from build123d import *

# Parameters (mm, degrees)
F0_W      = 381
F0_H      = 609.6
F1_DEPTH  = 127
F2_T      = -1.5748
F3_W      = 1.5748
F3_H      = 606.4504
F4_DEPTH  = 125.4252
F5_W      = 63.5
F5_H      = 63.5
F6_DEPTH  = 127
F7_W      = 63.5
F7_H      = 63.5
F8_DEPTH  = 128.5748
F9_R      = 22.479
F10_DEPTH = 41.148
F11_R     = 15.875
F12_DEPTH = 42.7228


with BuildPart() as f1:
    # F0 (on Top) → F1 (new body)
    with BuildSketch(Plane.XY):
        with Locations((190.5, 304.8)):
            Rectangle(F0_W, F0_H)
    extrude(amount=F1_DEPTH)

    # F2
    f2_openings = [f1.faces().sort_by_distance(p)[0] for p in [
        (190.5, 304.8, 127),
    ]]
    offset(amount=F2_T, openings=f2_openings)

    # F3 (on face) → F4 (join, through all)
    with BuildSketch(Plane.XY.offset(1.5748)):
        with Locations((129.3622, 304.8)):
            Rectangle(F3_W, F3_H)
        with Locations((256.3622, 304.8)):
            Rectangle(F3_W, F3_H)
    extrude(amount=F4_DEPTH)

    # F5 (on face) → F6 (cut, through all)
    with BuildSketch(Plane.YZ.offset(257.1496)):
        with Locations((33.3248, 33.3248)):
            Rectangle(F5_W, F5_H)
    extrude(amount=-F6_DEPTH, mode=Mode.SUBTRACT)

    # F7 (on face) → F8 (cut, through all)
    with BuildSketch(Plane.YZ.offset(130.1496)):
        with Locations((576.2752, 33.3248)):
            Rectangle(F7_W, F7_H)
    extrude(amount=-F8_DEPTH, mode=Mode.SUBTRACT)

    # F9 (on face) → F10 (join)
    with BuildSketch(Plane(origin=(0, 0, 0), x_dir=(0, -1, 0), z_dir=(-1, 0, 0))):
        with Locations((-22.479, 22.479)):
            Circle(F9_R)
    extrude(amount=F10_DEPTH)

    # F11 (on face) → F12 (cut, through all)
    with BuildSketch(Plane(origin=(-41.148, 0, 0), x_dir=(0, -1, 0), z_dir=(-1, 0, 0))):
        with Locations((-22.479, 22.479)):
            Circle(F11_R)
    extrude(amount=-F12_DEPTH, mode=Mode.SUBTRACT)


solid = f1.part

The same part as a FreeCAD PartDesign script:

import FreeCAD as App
import Part
import Sketcher
Q = App.Units.Quantity


def faces_at(feature, points):
    """Names of the faces that lie closest to the given points."""
    faces = feature.Shape.Faces
    near = lambda p: min(range(len(faces)), key=lambda i: faces[i].distToShape(Part.Vertex(*p))[0])
    return sorted({f"Face{near(p) + 1}" for p in points})

doc = App.newDocument("Part")
body = doc.addObject("PartDesign::Body", "Body")

# Sketch on XY plane
sketch1 = doc.addObject("Sketcher::SketchObject", "Sketch")
body.addObject(sketch1)
sketch1.AttachmentSupport = (doc.XY_Plane, [""])
sketch1.MapMode = "FlatFace"
sketch1.addGeometry([
    Part.LineSegment(App.Vector(0, 609.6, 0), App.Vector(0, 0, 0)),
    Part.LineSegment(App.Vector(0, 0, 0), App.Vector(381, 0, 0)),
    Part.LineSegment(App.Vector(381, 0, 0), App.Vector(381, 609.6, 0)),
    Part.LineSegment(App.Vector(381, 609.6, 0), App.Vector(0, 609.6, 0)),
], False)
sketch1.addConstraint([
    Sketcher.Constraint("Coincident", 0, 2, 1, 1),
    Sketcher.Constraint("Coincident", 1, 2, 2, 1),
    Sketcher.Constraint("Coincident", 2, 2, 3, 1),
    Sketcher.Constraint("Coincident", 3, 2, 0, 1),
    Sketcher.Constraint("Vertical", 0),
    Sketcher.Constraint("Horizontal", 1),
    Sketcher.Constraint("Vertical", 2),
    Sketcher.Constraint("Horizontal", 3),
    Sketcher.Constraint("Coincident", 0, 2, -1, 1),
    Sketcher.Constraint("DistanceX", 1, 1, 1, 2, Q("15 in")),
    Sketcher.Constraint("DistanceY", 0, 2, 0, 1, Q("24 in")),
])
pad1 = doc.addObject("PartDesign::Pad", "Pad")
body.addObject(pad1)
pad1.Profile = sketch1
pad1.Length = Q("5 in")
doc.recompute()

thickness = doc.addObject("PartDesign::Thickness", "Thickness")
body.addObject(thickness)
thickness.Base = (pad1, faces_at(pad1, [(190.5, 304.8, 127)]))
thickness.Value = Q("0.062 in")
thickness.Reversed = True
thickness.Join = "Arc"

# Sketch on XY plane
sketch2 = doc.addObject("Sketcher::SketchObject", "Sketch001")
body.addObject(sketch2)
sketch2.AttachmentSupport = (doc.XY_Plane, [""])
sketch2.MapMode = "FlatFace"
sketch2.AttachmentOffset = App.Placement(App.Vector(0, 0, 0.062 * 25.4), App.Rotation())
sketch2.addGeometry([
    Part.LineSegment(App.Vector(128.5748, 608.0252, 0), App.Vector(128.5748, 1.5748, 0)),  # 0
    Part.LineSegment(App.Vector(128.5748, 1.5748, 0), App.Vector(130.1496, 1.5748, 0)),  # 1
    Part.LineSegment(App.Vector(130.1496, 1.5748, 0), App.Vector(130.1496, 608.0252, 0)),  # 2
    Part.LineSegment(App.Vector(130.1496, 608.0252, 0), App.Vector(128.5748, 608.0252, 0)),  # 3
    Part.LineSegment(App.Vector(255.5748, 608.0252, 0), App.Vector(255.5748, 1.5748, 0)),  # 4
    Part.LineSegment(App.Vector(255.5748, 1.5748, 0), App.Vector(257.1496, 1.5748, 0)),  # 5
    Part.LineSegment(App.Vector(257.1496, 1.5748, 0), App.Vector(257.1496, 608.0252, 0)),  # 6
    Part.LineSegment(App.Vector(257.1496, 608.0252, 0), App.Vector(255.5748, 608.0252, 0)),  # 7
], False)
sketch2.addConstraint([
    Sketcher.Constraint("Coincident", 0, 2, 1, 1),
    Sketcher.Constraint("Coincident", 1, 2, 2, 1),
    Sketcher.Constraint("Coincident", 2, 2, 3, 1),
    Sketcher.Constraint("Coincident", 3, 2, 0, 1),
    Sketcher.Constraint("Coincident", 4, 2, 5, 1),
    Sketcher.Constraint("Coincident", 5, 2, 6, 1),
    Sketcher.Constraint("Coincident", 6, 2, 7, 1),
    Sketcher.Constraint("Coincident", 7, 2, 4, 1),
    Sketcher.Constraint("Vertical", 0),
    Sketcher.Constraint("Horizontal", 1),
    Sketcher.Constraint("Vertical", 2),
    Sketcher.Constraint("Horizontal", 3),
    Sketcher.Constraint("Vertical", 4),
    Sketcher.Constraint("Horizontal", 5),
    Sketcher.Constraint("Vertical", 6),
    Sketcher.Constraint("Horizontal", 7),
    Sketcher.Constraint("Horizontal", 1, 2, 4, 2),
    Sketcher.Constraint("Horizontal", 3, 2, 6, 2),
    Sketcher.Constraint("Equal", 3, 5),
    Sketcher.Constraint("DistanceX", 0, 2, 4, 2, Q("5 in")),
    Sketcher.Constraint("DistanceX", 1, 1, 1, 2, Q("0.062 in")),
    Sketcher.Constraint("DistanceY", 0, 2, 0, 1, Q("23.876 in")),
    Sketcher.Constraint("DistanceX", -1, 1, 0, 2, Q("5.062 in")),
    Sketcher.Constraint("DistanceY", -1, 1, 0, 2, Q("0.062 in")),
])
pad2 = doc.addObject("PartDesign::Pad", "Pad001")
body.addObject(pad2)
pad2.Profile = sketch2
pad2.Length = Q("4.938 in")

# Sketch on YZ plane
sketch3 = doc.addObject("Sketcher::SketchObject", "Sketch002")
body.addObject(sketch3)
sketch3.AttachmentSupport = (doc.YZ_Plane, [""])
sketch3.MapMode = "FlatFace"
sketch3.AttachmentOffset = App.Placement(App.Vector(0, 0, 10.124 * 25.4), App.Rotation())
sketch3.addGeometry([
    Part.LineSegment(App.Vector(1.5748, 65.0748, 0), App.Vector(1.5748, 1.5748, 0)),
    Part.LineSegment(App.Vector(1.5748, 1.5748, 0), App.Vector(65.0748, 1.5748, 0)),
    Part.LineSegment(App.Vector(65.0748, 1.5748, 0), App.Vector(65.0748, 65.0748, 0)),
    Part.LineSegment(App.Vector(65.0748, 65.0748, 0), App.Vector(1.5748, 65.0748, 0)),
], False)
sketch3.addConstraint([
    Sketcher.Constraint("Coincident", 0, 2, 1, 1),
    Sketcher.Constraint("Coincident", 1, 2, 2, 1),
    Sketcher.Constraint("Coincident", 2, 2, 3, 1),
    Sketcher.Constraint("Coincident", 3, 2, 0, 1),
    Sketcher.Constraint("Vertical", 0),
    Sketcher.Constraint("Horizontal", 1),
    Sketcher.Constraint("Vertical", 2),
    Sketcher.Constraint("Horizontal", 3),
    Sketcher.Constraint("Equal", 3, 0),
    Sketcher.Constraint("DistanceX", 1, 1, 1, 2, Q("2.5 in")),
    Sketcher.Constraint("DistanceX", -1, 1, 0, 2, Q("0.062 in")),
    Sketcher.Constraint("DistanceY", -1, 1, 0, 2, Q("0.062 in")),
])
pocket1 = doc.addObject("PartDesign::Pocket", "Pocket")
body.addObject(pocket1)
pocket1.Profile = sketch3
pocket1.Length = Q("5 in")

# Sketch on YZ plane
sketch4 = doc.addObject("Sketcher::SketchObject", "Sketch003")
body.addObject(sketch4)
sketch4.AttachmentSupport = (doc.YZ_Plane, [""])
sketch4.MapMode = "FlatFace"
sketch4.AttachmentOffset = App.Placement(App.Vector(0, 0, 5.124 * 25.4), App.Rotation())
sketch4.addGeometry([
    Part.LineSegment(App.Vector(544.5252, 65.0748, 0), App.Vector(544.5252, 1.5748, 0)),
    Part.LineSegment(App.Vector(544.5252, 1.5748, 0), App.Vector(608.0252, 1.5748, 0)),
    Part.LineSegment(App.Vector(608.0252, 1.5748, 0), App.Vector(608.0252, 65.0748, 0)),
    Part.LineSegment(App.Vector(608.0252, 65.0748, 0), App.Vector(544.5252, 65.0748, 0)),
], False)
sketch4.addConstraint([
    Sketcher.Constraint("Coincident", 0, 2, 1, 1),
    Sketcher.Constraint("Coincident", 1, 2, 2, 1),
    Sketcher.Constraint("Coincident", 2, 2, 3, 1),
    Sketcher.Constraint("Coincident", 3, 2, 0, 1),
    Sketcher.Constraint("Vertical", 0),
    Sketcher.Constraint("Horizontal", 1),
    Sketcher.Constraint("Vertical", 2),
    Sketcher.Constraint("Horizontal", 3),
    Sketcher.Constraint("Equal", 3, 0),
    Sketcher.Constraint("DistanceX", 1, 1, 1, 2, Q("2.5 in")),
    Sketcher.Constraint("DistanceX", -1, 1, 0, 2, Q("21.438 in")),
    Sketcher.Constraint("DistanceY", -1, 1, 0, 2, Q("0.062 in")),
])
pocket2 = doc.addObject("PartDesign::Pocket", "Pocket001")
body.addObject(pocket2)
pocket2.Profile = sketch4
pocket2.Length = Q("5.062 in")

# Sketch on YZ plane
sketch5 = doc.addObject("Sketcher::SketchObject", "Sketch004")
body.addObject(sketch5)
sketch5.AttachmentSupport = (doc.YZ_Plane, [""])
sketch5.MapMode = "FlatFace"
sketch5.addGeometry(Part.Circle(App.Vector(22.479, 22.479, 0), App.Vector(0, 0, 1), 22.479), False)
sketch5.addConstraint([
    Sketcher.Constraint("Diameter", 0, Q("1.77 in")),
    Sketcher.Constraint("DistanceX", -1, 1, 0, 3, Q("0.885 in")),
    Sketcher.Constraint("DistanceY", -1, 1, 0, 3, Q("0.885 in")),
])
pad3 = doc.addObject("PartDesign::Pad", "Pad002")
body.addObject(pad3)
pad3.Profile = sketch5
pad3.Length = Q("1.62 in")
pad3.Reversed = True

# Sketch on YZ plane
sketch6 = doc.addObject("Sketcher::SketchObject", "Sketch005")
body.addObject(sketch6)
sketch6.AttachmentSupport = (doc.YZ_Plane, [""])
sketch6.MapMode = "FlatFace"
sketch6.AttachmentOffset = App.Placement(App.Vector(0, 0, -1.62 * 25.4), App.Rotation())
sketch6.addGeometry(Part.Circle(App.Vector(22.479, 22.479, 0), App.Vector(0, 0, 1), 15.875), False)
sketch6.addConstraint([
    Sketcher.Constraint("Diameter", 0, Q("1.25 in")),
    Sketcher.Constraint("DistanceX", -1, 1, 0, 3, Q("0.885 in")),
    Sketcher.Constraint("DistanceY", -1, 1, 0, 3, Q("0.885 in")),
])
pocket3 = doc.addObject("PartDesign::Pocket", "Pocket002")
body.addObject(pocket3)
pocket3.Profile = sketch6
pocket3.Length = Q("1.682 in")
pocket3.Reversed = True

doc.recompute()
